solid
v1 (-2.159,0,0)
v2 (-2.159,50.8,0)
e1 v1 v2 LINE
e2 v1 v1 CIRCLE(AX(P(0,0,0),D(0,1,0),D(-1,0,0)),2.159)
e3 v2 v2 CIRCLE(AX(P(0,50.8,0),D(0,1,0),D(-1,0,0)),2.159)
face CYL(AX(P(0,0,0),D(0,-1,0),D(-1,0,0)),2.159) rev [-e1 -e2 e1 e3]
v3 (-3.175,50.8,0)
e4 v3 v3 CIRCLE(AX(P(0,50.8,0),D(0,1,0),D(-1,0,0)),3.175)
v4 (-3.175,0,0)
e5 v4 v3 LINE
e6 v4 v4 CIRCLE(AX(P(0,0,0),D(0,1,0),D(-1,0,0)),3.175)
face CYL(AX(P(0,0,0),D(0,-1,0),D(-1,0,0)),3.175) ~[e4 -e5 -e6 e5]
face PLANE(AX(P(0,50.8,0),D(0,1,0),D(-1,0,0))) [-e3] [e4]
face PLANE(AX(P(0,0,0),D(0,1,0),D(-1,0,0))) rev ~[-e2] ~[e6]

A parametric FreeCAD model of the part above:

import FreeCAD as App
import Part
import Sketcher
Q = App.Units.Quantity

doc = App.newDocument("Part")
body = doc.addObject("PartDesign::Body", "Body")

# Sketch on XZ plane
sketch1 = doc.addObject("Sketcher::SketchObject", "Sketch")
body.addObject(sketch1)
sketch1.AttachmentSupport = (doc.XZ_Plane, [""])
sketch1.MapMode = "FlatFace"
sketch1.addGeometry(Part.Circle(App.Vector(0, 0, 0), App.Vector(0, 0, 1), 3.175), False)
sketch1.addGeometry(Part.Circle(App.Vector(0, 0, 0), App.Vector(0, 0, 1), 2.159), False)
sketch1.addConstraint(Sketcher.Constraint("Coincident", 0, 3, -1, 1))
sketch1.addConstraint(Sketcher.Constraint("Coincident", 1, 3, -1, 1))
sketch1.addConstraint(Sketcher.Constraint("Diameter", 0, Q("0.25 in")))
sketch1.addConstraint(Sketcher.Constraint("Diameter", 1, Q("0.17 in")))
pad1 = doc.addObject("PartDesign::Pad", "Pad")
body.addObject(pad1)
pad1.Profile = sketch1
pad1.Length = Q("2 in")
pad1.Reversed = True

doc.recompute()
